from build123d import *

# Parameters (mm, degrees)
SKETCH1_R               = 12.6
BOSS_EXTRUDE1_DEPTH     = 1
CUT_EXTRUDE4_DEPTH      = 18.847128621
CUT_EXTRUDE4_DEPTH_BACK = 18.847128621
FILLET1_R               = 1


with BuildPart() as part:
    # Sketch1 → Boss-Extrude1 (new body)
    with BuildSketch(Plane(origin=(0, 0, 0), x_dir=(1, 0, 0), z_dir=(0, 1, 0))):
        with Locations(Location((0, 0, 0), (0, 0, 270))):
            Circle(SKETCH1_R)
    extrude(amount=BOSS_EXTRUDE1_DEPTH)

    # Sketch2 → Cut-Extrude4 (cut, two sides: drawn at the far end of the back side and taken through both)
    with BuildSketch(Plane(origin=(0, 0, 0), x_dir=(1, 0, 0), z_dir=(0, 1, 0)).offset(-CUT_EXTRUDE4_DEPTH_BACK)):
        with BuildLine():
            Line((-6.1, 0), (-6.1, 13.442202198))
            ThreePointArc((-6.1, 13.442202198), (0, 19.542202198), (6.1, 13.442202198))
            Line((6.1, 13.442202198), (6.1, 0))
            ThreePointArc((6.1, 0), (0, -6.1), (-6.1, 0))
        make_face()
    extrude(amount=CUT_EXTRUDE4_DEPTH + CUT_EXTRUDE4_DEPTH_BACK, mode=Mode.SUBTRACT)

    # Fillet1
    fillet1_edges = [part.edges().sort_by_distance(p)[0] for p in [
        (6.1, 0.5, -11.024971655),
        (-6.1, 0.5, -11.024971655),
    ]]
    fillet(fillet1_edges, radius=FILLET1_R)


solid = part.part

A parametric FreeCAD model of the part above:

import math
import FreeCAD as App
import Part
import Sketcher


def edges_at(feature, points):
    """Names of the edges that pass closest to the given points."""
    edges = feature.Shape.Edges
    near = lambda p: min(range(len(edges)), key=lambda i: edges[i].distToShape(Part.Vertex(*p))[0])
    return sorted({f"Edge{near(p) + 1}" for p in points})

doc = App.newDocument("Part")
params = doc.addObject("Spreadsheet::Sheet", "Params")
for row, (alias, value) in enumerate([
    ("sketch1_diameter", "25.2 mm"),
    ("pad1_length", "1 mm"),
    ("sketch2_radius", "6.1 mm"),
    ("fillet_radius", "1 mm"),
], start=1):
    params.set(f"A{row}", alias)
    params.set(f"B{row}", "=" + value)
    params.setAlias(f"B{row}", alias)

body = doc.addObject("PartDesign::Body", "Body")

sketch1 = body.newObject("Sketcher::SketchObject", "Sketch")
sketch1.AttachmentSupport = (doc.getObject("XZ_Plane"), [""])
sketch1.MapMode = "FlatFace"
sketch1.addGeometry(Part.Circle(App.Vector(0, 0, 0), App.Vector(0, 0, 1), 12.6), False)
sketch1.addConstraint([
    Sketcher.Constraint("Coincident", 0, 3, -1, 1),
    Sketcher.Constraint("Diameter", 0, 25.2),
])
sketch1.setExpression("Constraints[1]", "Params.sketch1_diameter")
pad1 = body.newObject("PartDesign::Pad", "Pad")
pad1.Profile = sketch1
pad1.setExpression("Length", "Params.pad1_length")
pad1.Reversed = True

sketch2 = body.newObject("Sketcher::SketchObject", "Sketch001")
sketch2.AttachmentSupport = (doc.getObject("XZ_Plane"), [""])
sketch2.MapMode = "FlatFace"
sketch2.addGeometry([
    Part.LineSegment(App.Vector(-6.1, -13.442202, 0), App.Vector(-6.1, 0, 0)),
    Part.ArcOfCircle(Part.Circle(App.Vector(0, 0, 0), App.Vector(0, 0, 1), 6.1), math.radians(0), math.radians(180)),
    Part.LineSegment(App.Vector(6.1, 0, 0), App.Vector(6.1, -13.442202, 0)),
    Part.ArcOfCircle(Part.Circle(App.Vector(0, -13.442202, 0), App.Vector(0, 0, 1), 6.1), math.radians(180), math.radians(360)),
], False)
sketch2.addConstraint([
    Sketcher.Constraint("Tangent", 0, 2, 1, 2),
    Sketcher.Constraint("Tangent", 1, 1, 2, 1),
    Sketcher.Constraint("Tangent", 2, 2, 3, 2),
    Sketcher.Constraint("Tangent", 3, 1, 0, 1),
    Sketcher.Constraint("Vertical", 0),
    Sketcher.Constraint("Vertical", 2),
    Sketcher.Constraint("Coincident", 1, 3, -1, 1),
    Sketcher.Constraint("Radius", 1, 6.1),
    Sketcher.Constraint("DistanceY", 0, 1, 0, 2, 13.442202),
])
sketch2.setExpression("Constraints[7]", "Params.sketch2_radius")
pocket1 = body.newObject("PartDesign::Pocket", "Pocket")
pocket1.Profile = sketch2
pocket1.Type = "ThroughAll"
pocket1.Midplane = True
doc.recompute()

fillet = body.newObject("PartDesign::Fillet", "Fillet")
fillet.Base = (pocket1, edges_at(pocket1, [(6.1, 0.5, -11.025), (-6.1, 0.5, -11.025)]))
fillet.setExpression("Radius", "Params.fillet_radius")

doc.recompute()
